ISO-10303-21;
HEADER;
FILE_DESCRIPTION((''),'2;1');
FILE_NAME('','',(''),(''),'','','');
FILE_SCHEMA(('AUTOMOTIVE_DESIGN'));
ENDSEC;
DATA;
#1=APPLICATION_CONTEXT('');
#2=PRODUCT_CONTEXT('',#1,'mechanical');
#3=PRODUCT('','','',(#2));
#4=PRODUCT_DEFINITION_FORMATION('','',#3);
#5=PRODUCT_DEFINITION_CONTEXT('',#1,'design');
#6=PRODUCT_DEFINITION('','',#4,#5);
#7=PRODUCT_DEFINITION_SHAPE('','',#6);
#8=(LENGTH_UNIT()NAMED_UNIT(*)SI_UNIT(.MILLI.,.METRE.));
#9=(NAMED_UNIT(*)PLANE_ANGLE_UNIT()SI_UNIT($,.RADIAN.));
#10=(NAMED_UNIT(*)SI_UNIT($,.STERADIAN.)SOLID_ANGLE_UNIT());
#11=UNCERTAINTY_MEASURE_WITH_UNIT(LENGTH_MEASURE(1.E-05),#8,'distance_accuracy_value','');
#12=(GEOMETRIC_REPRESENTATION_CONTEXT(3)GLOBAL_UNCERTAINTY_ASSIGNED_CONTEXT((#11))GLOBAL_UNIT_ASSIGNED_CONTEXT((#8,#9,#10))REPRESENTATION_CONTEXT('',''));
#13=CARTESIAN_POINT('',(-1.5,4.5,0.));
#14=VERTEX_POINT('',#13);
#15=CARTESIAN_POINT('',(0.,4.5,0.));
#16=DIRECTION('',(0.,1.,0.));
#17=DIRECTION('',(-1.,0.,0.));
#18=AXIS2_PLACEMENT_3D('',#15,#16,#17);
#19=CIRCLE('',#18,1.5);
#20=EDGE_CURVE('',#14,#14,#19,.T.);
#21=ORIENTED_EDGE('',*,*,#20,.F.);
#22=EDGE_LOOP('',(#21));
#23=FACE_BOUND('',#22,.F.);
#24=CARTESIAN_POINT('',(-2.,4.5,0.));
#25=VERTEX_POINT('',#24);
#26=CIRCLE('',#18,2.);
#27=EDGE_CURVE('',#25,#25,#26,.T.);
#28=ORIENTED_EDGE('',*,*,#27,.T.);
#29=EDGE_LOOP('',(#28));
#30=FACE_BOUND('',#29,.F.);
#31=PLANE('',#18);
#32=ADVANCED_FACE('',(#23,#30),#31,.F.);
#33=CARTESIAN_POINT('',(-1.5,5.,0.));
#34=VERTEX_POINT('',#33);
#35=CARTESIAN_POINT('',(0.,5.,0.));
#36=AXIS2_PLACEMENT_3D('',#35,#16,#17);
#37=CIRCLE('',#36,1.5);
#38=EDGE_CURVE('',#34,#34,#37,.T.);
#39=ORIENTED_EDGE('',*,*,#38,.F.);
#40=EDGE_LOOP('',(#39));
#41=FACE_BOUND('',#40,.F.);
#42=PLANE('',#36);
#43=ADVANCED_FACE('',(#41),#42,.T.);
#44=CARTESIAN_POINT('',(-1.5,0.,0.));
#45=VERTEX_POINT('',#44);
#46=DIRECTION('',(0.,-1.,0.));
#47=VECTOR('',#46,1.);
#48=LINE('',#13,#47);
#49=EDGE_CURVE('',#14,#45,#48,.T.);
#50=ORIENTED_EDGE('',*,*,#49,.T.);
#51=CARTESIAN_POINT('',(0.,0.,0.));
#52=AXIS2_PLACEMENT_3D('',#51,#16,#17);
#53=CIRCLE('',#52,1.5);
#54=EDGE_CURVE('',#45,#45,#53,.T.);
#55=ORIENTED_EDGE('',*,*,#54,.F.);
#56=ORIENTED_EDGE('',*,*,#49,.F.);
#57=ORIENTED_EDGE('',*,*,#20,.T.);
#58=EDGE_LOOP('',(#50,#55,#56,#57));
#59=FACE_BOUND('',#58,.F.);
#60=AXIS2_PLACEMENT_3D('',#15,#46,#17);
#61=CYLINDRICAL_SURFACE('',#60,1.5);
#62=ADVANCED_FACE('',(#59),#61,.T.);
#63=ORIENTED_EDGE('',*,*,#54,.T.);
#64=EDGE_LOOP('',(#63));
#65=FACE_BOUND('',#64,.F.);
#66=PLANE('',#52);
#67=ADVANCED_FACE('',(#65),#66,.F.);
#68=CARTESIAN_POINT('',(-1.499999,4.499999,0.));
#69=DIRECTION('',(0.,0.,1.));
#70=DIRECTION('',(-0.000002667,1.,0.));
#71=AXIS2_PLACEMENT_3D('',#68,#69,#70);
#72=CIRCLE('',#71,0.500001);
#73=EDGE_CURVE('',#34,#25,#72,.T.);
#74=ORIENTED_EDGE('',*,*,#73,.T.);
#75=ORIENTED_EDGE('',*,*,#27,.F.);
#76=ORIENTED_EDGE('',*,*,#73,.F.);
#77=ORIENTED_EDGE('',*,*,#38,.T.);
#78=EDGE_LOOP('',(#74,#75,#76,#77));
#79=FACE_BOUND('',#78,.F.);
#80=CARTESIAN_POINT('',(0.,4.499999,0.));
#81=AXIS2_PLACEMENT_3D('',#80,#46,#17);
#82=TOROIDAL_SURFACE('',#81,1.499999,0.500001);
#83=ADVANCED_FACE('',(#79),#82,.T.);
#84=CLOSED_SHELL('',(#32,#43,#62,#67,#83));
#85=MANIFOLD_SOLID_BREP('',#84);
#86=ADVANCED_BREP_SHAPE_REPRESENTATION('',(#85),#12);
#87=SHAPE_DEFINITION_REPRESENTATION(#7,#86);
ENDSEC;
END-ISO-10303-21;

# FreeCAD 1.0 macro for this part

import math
import FreeCAD as App
import Part
import Sketcher
from FreeCAD import Vector

doc = App.newDocument("Part")
body = doc.addObject("PartDesign::Body", "Body")

sketch1 = doc.addObject("Sketcher::SketchObject", "Sketch")
body.addObject(sketch1)
sketch1.AttachmentSupport = (doc.XY_Plane, [""])
sketch1.MapMode = "FlatFace"
sketch1.addGeometry(Part.LineSegment(Vector(-1.5, 0, 0), Vector(0, 0, 0)), False)
sketch1.addGeometry(Part.LineSegment(Vector(0, 0, 0), Vector(0, 5, 0)), False)
sketch1.addGeometry(Part.LineSegment(Vector(0, 5, 0), Vector(-1.5, 5, 0)), False)
sketch1.addGeometry(Part.ArcOfCircle(Part.Circle(Vector(-1.5, 4.5, 0), Vector(0, 0, 1), 0.5), math.radians(90), math.radians(180)), False)
sketch1.addGeometry(Part.LineSegment(Vector(-2, 4.5, 0), Vector(-1.5, 4.5, 0)), False)
sketch1.addGeometry(Part.LineSegment(Vector(-1.5, 4.5, 0), Vector(-1.5, 0, 0)), False)
sketch1.addConstraint(Sketcher.Constraint("Coincident", 0, 2, 1, 1))
sketch1.addConstraint(Sketcher.Constraint("Coincident", 1, 2, 2, 1))
sketch1.addConstraint(Sketcher.Constraint("Coincident", 2, 2, 3, 1))
sketch1.addConstraint(Sketcher.Constraint("Coincident", 3, 2, 4, 1))
sketch1.addConstraint(Sketcher.Constraint("Coincident", 4, 2, 5, 1))
sketch1.addConstraint(Sketcher.Constraint("Coincident", 5, 2, 0, 1))
sketch1.addConstraint(Sketcher.Constraint("Horizontal", 0))
sketch1.addConstraint(Sketcher.Constraint("Vertical", 1))
sketch1.addConstraint(Sketcher.Constraint("Horizontal", 2))
sketch1.addConstraint(Sketcher.Constraint("Horizontal", 4))
sketch1.addConstraint(Sketcher.Constraint("Vertical", 5))
sketch1.addConstraint(Sketcher.Constraint("Coincident", 0, 2, -1, 1))
sketch1.addConstraint(Sketcher.Constraint("Coincident", 4, 2, 3, 3))
sketch1.addConstraint(Sketcher.Constraint("Vertical", 3, 3, 2, 2))
sketch1.addConstraint(Sketcher.Constraint("Radius", 3, 0.500001))
sketch1.addConstraint(Sketcher.Constraint("DistanceY", 1, 1, 1, 2, 5.0))
sketch1.addConstraint(Sketcher.Constraint("DistanceX", 0, 1, 0, 2, 1.5))
revolution = doc.addObject("PartDesign::Revolution", "Revolution")
body.addObject(revolution)
revolution.Profile = sketch1
revolution.ReferenceAxis = (sketch1, ["V_Axis"])
revolution.Angle = 360

doc.recompute()
